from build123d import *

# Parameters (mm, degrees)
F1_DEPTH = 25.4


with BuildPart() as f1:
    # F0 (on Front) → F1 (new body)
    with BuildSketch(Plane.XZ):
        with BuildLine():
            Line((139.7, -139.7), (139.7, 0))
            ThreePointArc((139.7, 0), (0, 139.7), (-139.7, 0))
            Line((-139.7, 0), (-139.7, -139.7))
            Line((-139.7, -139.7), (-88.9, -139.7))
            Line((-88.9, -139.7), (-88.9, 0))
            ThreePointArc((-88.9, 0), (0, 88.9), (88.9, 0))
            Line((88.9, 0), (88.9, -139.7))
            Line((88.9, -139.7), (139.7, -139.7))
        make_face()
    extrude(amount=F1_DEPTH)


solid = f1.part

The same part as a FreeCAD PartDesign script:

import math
import FreeCAD as App
import Part
import Sketcher
Q = App.Units.Quantity

doc = App.newDocument("Part")
body = doc.addObject("PartDesign::Body", "Body")

# Sketch on XZ plane
sketch1 = doc.addObject("Sketcher::SketchObject", "Sketch")
body.addObject(sketch1)
sketch1.AttachmentSupport = (doc.XZ_Plane, [""])
sketch1.MapMode = "FlatFace"
sketch1.addGeometry(Part.LineSegment(App.Vector(140, -140, 0), App.Vector(140, 0, 0)), False)
sketch1.addGeometry(Part.ArcOfCircle(Part.Circle(App.Vector(0, 0, 0), App.Vector(0, 0, 1), 140), math.radians(0), math.radians(180)), False)
sketch1.addGeometry(Part.LineSegment(App.Vector(-140, 0, 0), App.Vector(-140, -140, 0)), False)
sketch1.addGeometry(Part.LineSegment(App.Vector(-140, -140, 0), App.Vector(-89, -140, 0)), False)
sketch1.addGeometry(Part.LineSegment(App.Vector(-89, -140, 0), App.Vector(-89, 0, 0)), False)
sketch1.addGeometry(Part.ArcOfCircle(Part.Circle(App.Vector(0, 0, 0), App.Vector(0, 0, 1), 89), math.radians(0), math.radians(180)), False)
sketch1.addGeometry(Part.LineSegment(App.Vector(89, 0, 0), App.Vector(89, -140, 0)), False)
sketch1.addGeometry(Part.LineSegment(App.Vector(89, -140, 0), App.Vector(140, -140, 0)), False)
sketch1.addConstraint(Sketcher.Constraint("Tangent", 0, 2, 1, 1))
sketch1.addConstraint(Sketcher.Constraint("Tangent", 1, 2, 2, 1))
sketch1.addConstraint(Sketcher.Constraint("Coincident", 2, 2, 3, 1))
sketch1.addConstraint(Sketcher.Constraint("Coincident", 3, 2, 4, 1))
sketch1.addConstraint(Sketcher.Constraint("Tangent", 4, 2, 5, 2))
sketch1.addConstraint(Sketcher.Constraint("Tangent", 5, 1, 6, 1))
sketch1.addConstraint(Sketcher.Constraint("Coincident", 6, 2, 7, 1))
sketch1.addConstraint(Sketcher.Constraint("Coincident", 7, 2, 0, 1))
sketch1.addConstraint(Sketcher.Constraint("Vertical", 0))
sketch1.addConstraint(Sketcher.Constraint("Vertical", 2))
sketch1.addConstraint(Sketcher.Constraint("Horizontal", 3))
sketch1.addConstraint(Sketcher.Constraint("Vertical", 4))
sketch1.addConstraint(Sketcher.Constraint("Vertical", 6))
sketch1.addConstraint(Sketcher.Constraint("Horizontal", 7))
sketch1.addConstraint(Sketcher.Constraint("Coincident", 1, 3, -1, 1))
sketch1.addConstraint(Sketcher.Constraint("Coincident", 5, 3, -1, 1))
sketch1.addConstraint(Sketcher.Constraint("Horizontal", 3, 2, 6, 2))
sketch1.addConstraint(Sketcher.Constraint("Radius", 1, Q("5.5 in")))
sketch1.addConstraint(Sketcher.Constraint("Radius", 5, Q("3.5 in")))
sketch1.addConstraint(Sketcher.Constraint("DistanceY", 0, 1, 0, 2, Q("5.5 in")))
pad1 = doc.addObject("PartDesign::Pad", "Pad")
body.addObject(pad1)
pad1.Profile = sketch1
pad1.Length = Q("1 in")

doc.recompute()
